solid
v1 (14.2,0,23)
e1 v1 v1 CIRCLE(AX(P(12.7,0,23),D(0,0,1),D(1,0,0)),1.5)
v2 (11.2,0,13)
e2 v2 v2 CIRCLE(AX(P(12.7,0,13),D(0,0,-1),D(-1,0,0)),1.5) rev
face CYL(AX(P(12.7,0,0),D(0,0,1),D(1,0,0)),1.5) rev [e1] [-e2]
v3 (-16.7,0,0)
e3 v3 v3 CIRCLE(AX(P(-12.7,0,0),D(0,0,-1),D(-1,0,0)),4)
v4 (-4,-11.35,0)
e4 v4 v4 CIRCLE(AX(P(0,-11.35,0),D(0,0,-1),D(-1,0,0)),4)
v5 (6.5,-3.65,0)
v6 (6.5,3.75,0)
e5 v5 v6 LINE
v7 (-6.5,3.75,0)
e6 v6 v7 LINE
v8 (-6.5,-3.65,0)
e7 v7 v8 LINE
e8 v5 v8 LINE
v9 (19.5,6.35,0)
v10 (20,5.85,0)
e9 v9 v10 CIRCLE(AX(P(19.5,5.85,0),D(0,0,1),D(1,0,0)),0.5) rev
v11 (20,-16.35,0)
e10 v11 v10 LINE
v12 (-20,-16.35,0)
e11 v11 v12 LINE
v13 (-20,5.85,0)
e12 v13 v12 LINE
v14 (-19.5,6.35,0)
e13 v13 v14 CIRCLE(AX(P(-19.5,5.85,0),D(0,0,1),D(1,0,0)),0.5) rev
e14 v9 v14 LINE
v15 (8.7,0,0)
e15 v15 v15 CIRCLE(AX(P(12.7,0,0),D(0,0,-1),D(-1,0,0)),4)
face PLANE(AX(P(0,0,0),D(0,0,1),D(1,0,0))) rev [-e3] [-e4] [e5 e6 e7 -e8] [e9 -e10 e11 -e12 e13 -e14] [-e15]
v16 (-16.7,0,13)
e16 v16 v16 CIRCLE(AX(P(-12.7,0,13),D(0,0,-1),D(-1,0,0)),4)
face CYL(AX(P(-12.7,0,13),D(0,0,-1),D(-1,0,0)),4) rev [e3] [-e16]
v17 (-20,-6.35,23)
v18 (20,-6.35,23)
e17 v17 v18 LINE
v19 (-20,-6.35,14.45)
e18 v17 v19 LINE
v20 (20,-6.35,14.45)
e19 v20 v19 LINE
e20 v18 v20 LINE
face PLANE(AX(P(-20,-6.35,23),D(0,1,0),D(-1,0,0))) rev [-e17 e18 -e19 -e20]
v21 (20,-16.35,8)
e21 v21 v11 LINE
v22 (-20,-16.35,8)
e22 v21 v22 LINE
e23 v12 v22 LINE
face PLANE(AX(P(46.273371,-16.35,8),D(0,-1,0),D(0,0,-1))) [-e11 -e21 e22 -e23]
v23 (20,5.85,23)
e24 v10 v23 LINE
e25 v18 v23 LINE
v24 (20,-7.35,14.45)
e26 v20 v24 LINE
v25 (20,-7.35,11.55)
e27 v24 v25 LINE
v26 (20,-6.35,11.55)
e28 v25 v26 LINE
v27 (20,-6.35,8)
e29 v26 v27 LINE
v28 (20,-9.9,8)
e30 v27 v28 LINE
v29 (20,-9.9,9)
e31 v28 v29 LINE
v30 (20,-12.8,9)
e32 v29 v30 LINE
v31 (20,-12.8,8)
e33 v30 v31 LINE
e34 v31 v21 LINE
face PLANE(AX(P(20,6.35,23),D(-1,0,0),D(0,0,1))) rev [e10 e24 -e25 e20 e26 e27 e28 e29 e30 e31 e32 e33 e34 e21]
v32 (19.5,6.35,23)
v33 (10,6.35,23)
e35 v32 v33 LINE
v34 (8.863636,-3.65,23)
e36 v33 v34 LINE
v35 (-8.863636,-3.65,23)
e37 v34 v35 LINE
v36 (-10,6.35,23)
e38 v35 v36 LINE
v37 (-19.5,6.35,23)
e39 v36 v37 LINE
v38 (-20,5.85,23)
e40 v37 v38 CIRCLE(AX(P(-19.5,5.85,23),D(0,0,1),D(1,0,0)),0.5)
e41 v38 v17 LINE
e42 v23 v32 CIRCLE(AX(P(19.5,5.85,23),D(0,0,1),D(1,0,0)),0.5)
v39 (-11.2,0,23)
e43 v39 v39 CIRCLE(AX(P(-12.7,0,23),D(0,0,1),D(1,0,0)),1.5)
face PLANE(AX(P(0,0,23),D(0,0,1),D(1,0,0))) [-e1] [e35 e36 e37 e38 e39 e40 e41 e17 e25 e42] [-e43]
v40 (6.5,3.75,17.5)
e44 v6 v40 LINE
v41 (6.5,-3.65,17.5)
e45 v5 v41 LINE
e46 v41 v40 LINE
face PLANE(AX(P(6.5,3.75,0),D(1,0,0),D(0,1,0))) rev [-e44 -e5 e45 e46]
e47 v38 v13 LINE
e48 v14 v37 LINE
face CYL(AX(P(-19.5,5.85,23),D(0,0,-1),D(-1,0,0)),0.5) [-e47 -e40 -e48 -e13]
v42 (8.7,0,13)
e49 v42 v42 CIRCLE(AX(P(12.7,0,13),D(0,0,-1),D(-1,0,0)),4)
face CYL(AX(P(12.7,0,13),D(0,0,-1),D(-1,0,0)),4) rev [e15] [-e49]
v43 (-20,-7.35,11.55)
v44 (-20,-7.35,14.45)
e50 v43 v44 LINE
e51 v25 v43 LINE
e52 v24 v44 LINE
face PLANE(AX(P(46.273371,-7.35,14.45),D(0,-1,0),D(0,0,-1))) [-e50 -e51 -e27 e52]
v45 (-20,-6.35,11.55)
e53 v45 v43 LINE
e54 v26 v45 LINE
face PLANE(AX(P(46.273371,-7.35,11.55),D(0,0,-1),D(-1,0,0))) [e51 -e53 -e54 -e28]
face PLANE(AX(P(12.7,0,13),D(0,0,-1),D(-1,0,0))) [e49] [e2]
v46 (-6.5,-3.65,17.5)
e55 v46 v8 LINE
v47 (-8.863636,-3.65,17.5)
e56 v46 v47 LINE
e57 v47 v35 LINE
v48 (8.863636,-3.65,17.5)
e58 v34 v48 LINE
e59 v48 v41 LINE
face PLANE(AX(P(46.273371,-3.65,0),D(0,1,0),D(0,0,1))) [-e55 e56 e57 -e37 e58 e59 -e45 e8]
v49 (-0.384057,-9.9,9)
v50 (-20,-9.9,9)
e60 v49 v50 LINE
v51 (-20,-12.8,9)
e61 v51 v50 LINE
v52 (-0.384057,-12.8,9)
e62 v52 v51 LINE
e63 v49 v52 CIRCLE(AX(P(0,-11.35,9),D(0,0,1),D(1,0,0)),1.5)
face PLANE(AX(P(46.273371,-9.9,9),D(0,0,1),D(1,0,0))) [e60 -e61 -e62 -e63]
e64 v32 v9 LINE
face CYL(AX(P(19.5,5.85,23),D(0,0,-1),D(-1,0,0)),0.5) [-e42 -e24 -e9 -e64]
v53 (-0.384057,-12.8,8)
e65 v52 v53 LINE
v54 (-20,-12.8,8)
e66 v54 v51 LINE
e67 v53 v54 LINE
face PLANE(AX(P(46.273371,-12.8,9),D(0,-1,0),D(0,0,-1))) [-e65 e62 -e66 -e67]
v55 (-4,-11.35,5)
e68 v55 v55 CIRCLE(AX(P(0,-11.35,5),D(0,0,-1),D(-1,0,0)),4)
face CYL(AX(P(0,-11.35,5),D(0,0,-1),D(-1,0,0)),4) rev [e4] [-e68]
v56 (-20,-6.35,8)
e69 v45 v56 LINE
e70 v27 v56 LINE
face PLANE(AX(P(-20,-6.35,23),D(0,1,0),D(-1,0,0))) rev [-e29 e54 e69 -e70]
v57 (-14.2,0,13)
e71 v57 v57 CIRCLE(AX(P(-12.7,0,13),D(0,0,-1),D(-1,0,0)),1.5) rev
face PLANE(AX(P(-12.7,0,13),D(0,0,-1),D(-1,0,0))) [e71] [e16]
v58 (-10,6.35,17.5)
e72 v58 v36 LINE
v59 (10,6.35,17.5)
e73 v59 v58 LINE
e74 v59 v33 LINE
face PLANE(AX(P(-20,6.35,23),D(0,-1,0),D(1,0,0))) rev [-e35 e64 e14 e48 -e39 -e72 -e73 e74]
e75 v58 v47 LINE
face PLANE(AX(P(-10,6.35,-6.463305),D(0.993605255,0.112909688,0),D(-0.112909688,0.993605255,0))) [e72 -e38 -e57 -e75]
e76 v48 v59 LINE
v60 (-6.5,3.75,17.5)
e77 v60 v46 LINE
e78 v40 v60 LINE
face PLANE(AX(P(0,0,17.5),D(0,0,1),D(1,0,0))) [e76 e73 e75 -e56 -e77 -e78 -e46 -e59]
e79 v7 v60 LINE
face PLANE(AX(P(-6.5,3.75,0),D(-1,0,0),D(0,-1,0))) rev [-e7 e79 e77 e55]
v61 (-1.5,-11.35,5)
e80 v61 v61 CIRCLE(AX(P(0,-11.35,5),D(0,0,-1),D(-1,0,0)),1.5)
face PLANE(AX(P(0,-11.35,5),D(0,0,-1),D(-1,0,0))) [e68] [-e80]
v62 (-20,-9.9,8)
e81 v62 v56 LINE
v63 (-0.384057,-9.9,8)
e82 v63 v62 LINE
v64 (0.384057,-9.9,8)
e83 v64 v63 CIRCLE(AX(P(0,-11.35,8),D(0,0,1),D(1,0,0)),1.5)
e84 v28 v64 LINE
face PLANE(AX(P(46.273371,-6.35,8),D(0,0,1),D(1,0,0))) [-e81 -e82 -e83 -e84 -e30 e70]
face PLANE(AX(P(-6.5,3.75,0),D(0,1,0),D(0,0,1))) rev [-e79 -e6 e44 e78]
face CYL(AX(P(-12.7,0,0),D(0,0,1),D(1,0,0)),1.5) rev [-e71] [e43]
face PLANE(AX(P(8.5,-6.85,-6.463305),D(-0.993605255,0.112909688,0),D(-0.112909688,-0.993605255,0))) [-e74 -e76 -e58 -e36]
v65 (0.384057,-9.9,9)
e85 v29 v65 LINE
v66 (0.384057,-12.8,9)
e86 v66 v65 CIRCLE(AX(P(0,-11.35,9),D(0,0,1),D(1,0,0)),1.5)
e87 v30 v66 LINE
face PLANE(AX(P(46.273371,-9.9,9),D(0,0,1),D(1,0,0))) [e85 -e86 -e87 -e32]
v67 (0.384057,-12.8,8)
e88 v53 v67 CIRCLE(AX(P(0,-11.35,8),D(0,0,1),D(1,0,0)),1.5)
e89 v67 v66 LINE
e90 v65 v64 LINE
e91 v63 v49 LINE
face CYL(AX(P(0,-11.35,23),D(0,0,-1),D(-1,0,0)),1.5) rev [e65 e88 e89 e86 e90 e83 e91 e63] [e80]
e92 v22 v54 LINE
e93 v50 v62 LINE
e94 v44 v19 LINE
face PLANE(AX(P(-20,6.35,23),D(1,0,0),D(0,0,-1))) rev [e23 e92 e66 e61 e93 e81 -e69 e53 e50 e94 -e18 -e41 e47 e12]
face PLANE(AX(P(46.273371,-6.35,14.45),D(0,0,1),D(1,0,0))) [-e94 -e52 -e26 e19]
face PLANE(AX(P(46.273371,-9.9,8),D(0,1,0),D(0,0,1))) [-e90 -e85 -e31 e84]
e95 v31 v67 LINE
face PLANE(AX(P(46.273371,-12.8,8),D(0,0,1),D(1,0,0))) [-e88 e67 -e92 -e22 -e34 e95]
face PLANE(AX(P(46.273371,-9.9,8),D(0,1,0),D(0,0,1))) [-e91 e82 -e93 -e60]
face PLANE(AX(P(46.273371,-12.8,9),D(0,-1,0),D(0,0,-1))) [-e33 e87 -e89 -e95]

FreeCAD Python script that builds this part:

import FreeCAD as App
import Part
import Sketcher


def edges_at(feature, points):
    """Names of the edges that pass closest to the given points."""
    edges = feature.Shape.Edges
    near = lambda p: min(range(len(edges)), key=lambda i: edges[i].distToShape(Part.Vertex(*p))[0])
    return sorted({f"Edge{near(p) + 1}" for p in points})


def add_polygon(sketch, points):
    """Adds a closed chain of lines whose ends are joined by coincident constraints."""
    first, n = sketch.GeometryCount, len(points)
    for a, b in zip(points, points[1:] + points[:1]):
        sketch.addGeometry(Part.LineSegment(App.Vector(*a, 0), App.Vector(*b, 0)), False)
    for i in range(n):
        sketch.addConstraint(Sketcher.Constraint("Coincident", first + i, 2, first + (i + 1) % n, 1))

doc = App.newDocument("Part")
body = doc.addObject("PartDesign::Body", "Body")

sketch1 = doc.addObject("Sketcher::SketchObject", "Sketch")
body.addObject(sketch1)
sketch1.AttachmentSupport = (doc.XY_Plane, [""])
sketch1.MapMode = "FlatFace"
add_polygon(sketch1, [(-20, 6.35), (-20, -6.35), (20, -6.35), (20, 6.35)])
sketch1.addConstraint(Sketcher.Constraint("Vertical", 0))
sketch1.addConstraint(Sketcher.Constraint("Horizontal", 1))
sketch1.addConstraint(Sketcher.Constraint("Vertical", 2))
sketch1.addConstraint(Sketcher.Constraint("Horizontal", 3))
sketch1.addConstraint(Sketcher.Constraint("Symmetric", 0, 2, 2, 2, -1, 1))
sketch1.addConstraint(Sketcher.Constraint("DistanceX", 1, 1, 1, 2, 40.0))
sketch1.addConstraint(Sketcher.Constraint("DistanceY", 0, 2, 0, 1, 12.7))
pad1 = doc.addObject("PartDesign::Pad", "Pad")
body.addObject(pad1)
pad1.Profile = sketch1
pad1.Length = 23
doc.recompute()

fillet = doc.addObject("PartDesign::Fillet", "Fillet")
body.addObject(fillet)
fillet.Base = (pad1, edges_at(pad1, [(-20, 6.35, 11.5), (20, 6.35, 11.5)]))
fillet.Radius = 0.5

sketch2 = doc.addObject("Sketcher::SketchObject", "Sketch001")
body.addObject(sketch2)
sketch2.AttachmentSupport = (doc.XY_Plane, [""])
sketch2.MapMode = "FlatFace"
sketch2.AttachmentOffset = App.Placement(App.Vector(0, 0, 23), App.Rotation())
sketch2.addGeometry(Part.Circle(App.Vector(-12.7, 0, 0), App.Vector(0, 0, 1), 1.5), False)
sketch2.addGeometry(Part.Circle(App.Vector(12.7, 0, 0), App.Vector(0, 0, 1), 1.5), False)
sketch2.addConstraint(Sketcher.Constraint("Equal", 0, 1))
sketch2.addConstraint(Sketcher.Constraint("Symmetric", 0, 3, 1, 3, -1, 1))
sketch2.addConstraint(Sketcher.Constraint("PointOnObject", 0, 3, -1))
sketch2.addConstraint(Sketcher.Constraint("Diameter", 0, 3.0))
sketch2.addConstraint(Sketcher.Constraint("DistanceX", 0, 3, -1, 1, 12.7))
pocket1 = doc.addObject("PartDesign::Pocket", "Pocket")
body.addObject(pocket1)
pocket1.Profile = sketch2
pocket1.Type = "ThroughAll"

sketch3 = doc.addObject("Sketcher::SketchObject", "Sketch002")
body.addObject(sketch3)
sketch3.AttachmentSupport = (doc.XY_Plane, [""])
sketch3.MapMode = "FlatFace"
sketch3.AttachmentOffset = App.Placement(App.Vector(0, 0, 23), App.Rotation())
add_polygon(sketch3, [(-10, 6.35), (10, 6.35), (8.5, -6.85), (-8.5, -6.85)])
sketch3.addConstraint(Sketcher.Constraint("Horizontal", 0))
sketch3.addConstraint(Sketcher.Constraint("Horizontal", 2))
sketch3.addConstraint(Sketcher.Constraint("Equal", 1, 3))
sketch3.addConstraint(Sketcher.Constraint("DistanceX", 0, 1, 0, 2, 20.0))
sketch3.addConstraint(Sketcher.Constraint("DistanceX", 2, 2, 2, 1, 17.0))
sketch3.addConstraint(Sketcher.Constraint("DistanceX", -1, 1, 0, 2, 10.0))
sketch3.addConstraint(Sketcher.Constraint("DistanceY", 1, 2, 0, 2, 13.2))
sketch3.addConstraint(Sketcher.Constraint("DistanceY", -1, 1, 0, 2, 6.35))
pocket2 = doc.addObject("PartDesign::Pocket", "Pocket001")
body.addObject(pocket2)
pocket2.Profile = sketch3
pocket2.Length = 5.5

sketch4 = doc.addObject("Sketcher::SketchObject", "Sketch003")
body.addObject(sketch4)
sketch4.AttachmentSupport = (doc.XY_Plane, [""])
sketch4.MapMode = "FlatFace"
sketch4.AttachmentOffset = App.Placement(App.Vector(0, 0, 17.5), App.Rotation())
add_polygon(sketch4, [(-6.5, 3.75), (-6.5, -4.25), (6.5, -4.25), (6.5, 3.75)])
sketch4.addConstraint(Sketcher.Constraint("Vertical", 0))
sketch4.addConstraint(Sketcher.Constraint("Horizontal", 1))
sketch4.addConstraint(Sketcher.Constraint("Vertical", 2))
sketch4.addConstraint(Sketcher.Constraint("Horizontal", 3))
sketch4.addConstraint(Sketcher.Constraint("DistanceX", 1, 1, 1, 2, 13.0))
sketch4.addConstraint(Sketcher.Constraint("DistanceY", 0, 2, 0, 1, 8.0))
sketch4.addConstraint(Sketcher.Constraint("DistanceX", 0, 2, -1, 1, 6.5))
sketch4.addConstraint(Sketcher.Constraint("DistanceY", 0, 2, -1, 1, 4.25))
pocket3 = doc.addObject("PartDesign::Pocket", "Pocket002")
body.addObject(pocket3)
pocket3.Profile = sketch4
pocket3.Type = "ThroughAll"

sketch5 = doc.addObject("Sketcher::SketchObject", "Sketch004")
body.addObject(sketch5)
sketch5.AttachmentSupport = (doc.YZ_Plane, [""])
sketch5.MapMode = "FlatFace"
sketch5.AttachmentOffset = App.Placement(App.Vector(0, 0, -20), App.Rotation())
add_polygon(sketch5, [(-16.35, 0), (-16.35, 8), (-12.8, 8), (-12.8, 9), (-9.9, 9), (-9.9, 8), (-6.35, 8), (-6.35, 11.55), (-7.35, 11.55), (-7.35, 14.45), (-6.35, 14.45), (-6.35, 23), (-3.65, 23), (-3.65, 0)])
sketch5.addConstraint(Sketcher.Constraint("Vertical", 0))
sketch5.addConstraint(Sketcher.Constraint("Horizontal", 1))
sketch5.addConstraint(Sketcher.Constraint("Vertical", 2))
sketch5.addConstraint(Sketcher.Constraint("Horizontal", 3))
sketch5.addConstraint(Sketcher.Constraint("Vertical", 4))
sketch5.addConstraint(Sketcher.Constraint("Horizontal", 5))
sketch5.addConstraint(Sketcher.Constraint("Vertical", 6))
sketch5.addConstraint(Sketcher.Constraint("Horizontal", 7))
sketch5.addConstraint(Sketcher.Constraint("Vertical", 8))
sketch5.addConstraint(Sketcher.Constraint("Horizontal", 9))
sketch5.addConstraint(Sketcher.Constraint("Vertical", 10))
sketch5.addConstraint(Sketcher.Constraint("Horizontal", 11))
sketch5.addConstraint(Sketcher.Constraint("Vertical", 12))
sketch5.addConstraint(Sketcher.Constraint("Horizontal", 13))
sketch5.addConstraint(Sketcher.Constraint("PointOnObject", 12, 2, -1))
sketch5.addConstraint(Sketcher.Constraint("Horizontal", 1, 2, 4, 2))
sketch5.addConstraint(Sketcher.Constraint("Vertical", 6, 2, 9, 2))
sketch5.addConstraint(Sketcher.Constraint("Equal", 1, 5))
sketch5.addConstraint(Sketcher.Constraint("Equal", 9, 2))
sketch5.addConstraint(Sketcher.Constraint("Equal", 5, 6))
sketch5.addConstraint(Sketcher.Constraint("Equal", 3, 8))
sketch5.addConstraint(Sketcher.Constraint("DistanceX", 7, 2, 7, 1, 1.0))
sketch5.addConstraint(Sketcher.Constraint("DistanceY", 0, 1, 0, 2, 8.0))
sketch5.addConstraint(Sketcher.Constraint("DistanceY", 12, 2, 12, 1, 23.0))
sketch5.addConstraint(Sketcher.Constraint("DistanceX", 3, 1, 3, 2, 2.9))
sketch5.addConstraint(Sketcher.Constraint("DistanceX", 11, 1, 11, 2, 2.7))
sketch5.addConstraint(Sketcher.Constraint("DistanceX", 13, 2, 13, 1, 12.7))
sketch5.addConstraint(Sketcher.Constraint("DistanceX", 1, 2, -1, 1, 12.8))
pad2 = doc.addObject("PartDesign::Pad", "Pad001")
body.addObject(pad2)
pad2.Profile = sketch5
pad2.Length = 40

sketch6 = doc.addObject("Sketcher::SketchObject", "Sketch005")
body.addObject(sketch6)
sketch6.AttachmentSupport = (doc.XY_Plane, [""])
sketch6.MapMode = "FlatFace"
sketch6.addGeometry(Part.Circle(App.Vector(12.7, 0, 0), App.Vector(0, 0, 1), 4), False)
sketch6.addGeometry(Part.Circle(App.Vector(-12.7, 0, 0), App.Vector(0, 0, 1), 4), False)
sketch6.addConstraint(Sketcher.Constraint("Equal", 0, 1))
sketch6.addConstraint(Sketcher.Constraint("Symmetric", 0, 3, 1, 3, -1, 1))
sketch6.addConstraint(Sketcher.Constraint("PointOnObject", 0, 3, -1))
sketch6.addConstraint(Sketcher.Constraint("Diameter", 0, 8.0))
sketch6.addConstraint(Sketcher.Constraint("DistanceX", -1, 1, 0, 3, 12.7))
pocket4 = doc.addObject("PartDesign::Pocket", "Pocket003")
body.addObject(pocket4)
pocket4.Profile = sketch6
pocket4.Length = 13
pocket4.Reversed = True

sketch7 = doc.addObject("Sketcher::SketchObject", "Sketch006")
body.addObject(sketch7)
sketch7.AttachmentSupport = (doc.XY_Plane, [""])
sketch7.MapMode = "FlatFace"
sketch7.addGeometry(Part.Circle(App.Vector(0, -11.35, 0), App.Vector(0, 0, 1), 4), False)
sketch7.addConstraint(Sketcher.Constraint("PointOnObject", 0, 3, -2))
sketch7.addConstraint(Sketcher.Constraint("Diameter", 0, 8.0))
sketch7.addConstraint(Sketcher.Constraint("DistanceY", 0, 3, -1, 1, 11.35))
pocket5 = doc.addObject("PartDesign::Pocket", "Pocket004")
body.addObject(pocket5)
pocket5.Profile = sketch7
pocket5.Length = 5
pocket5.Reversed = True

sketch8 = doc.addObject("Sketcher::SketchObject", "Sketch007")
body.addObject(sketch8)
sketch8.AttachmentSupport = (doc.XY_Plane, [""])
sketch8.MapMode = "FlatFace"
sketch8.AttachmentOffset = App.Placement(App.Vector(0, 0, 5), App.Rotation())
sketch8.addGeometry(Part.Circle(App.Vector(0, -11.35, 0), App.Vector(0, 0, 1), 1.5), False)
sketch8.addConstraint(Sketcher.Constraint("PointOnObject", 0, 3, -2))
sketch8.addConstraint(Sketcher.Constraint("Diameter", 0, 3.0))
sketch8.addConstraint(Sketcher.Constraint("DistanceY", 0, 3, -1, 1, 11.35))
pocket6 = doc.addObject("PartDesign::Pocket", "Pocket005")
body.addObject(pocket6)
pocket6.Profile = sketch8
pocket6.Type = "ThroughAll"
pocket6.Reversed = True

doc.recompute()
